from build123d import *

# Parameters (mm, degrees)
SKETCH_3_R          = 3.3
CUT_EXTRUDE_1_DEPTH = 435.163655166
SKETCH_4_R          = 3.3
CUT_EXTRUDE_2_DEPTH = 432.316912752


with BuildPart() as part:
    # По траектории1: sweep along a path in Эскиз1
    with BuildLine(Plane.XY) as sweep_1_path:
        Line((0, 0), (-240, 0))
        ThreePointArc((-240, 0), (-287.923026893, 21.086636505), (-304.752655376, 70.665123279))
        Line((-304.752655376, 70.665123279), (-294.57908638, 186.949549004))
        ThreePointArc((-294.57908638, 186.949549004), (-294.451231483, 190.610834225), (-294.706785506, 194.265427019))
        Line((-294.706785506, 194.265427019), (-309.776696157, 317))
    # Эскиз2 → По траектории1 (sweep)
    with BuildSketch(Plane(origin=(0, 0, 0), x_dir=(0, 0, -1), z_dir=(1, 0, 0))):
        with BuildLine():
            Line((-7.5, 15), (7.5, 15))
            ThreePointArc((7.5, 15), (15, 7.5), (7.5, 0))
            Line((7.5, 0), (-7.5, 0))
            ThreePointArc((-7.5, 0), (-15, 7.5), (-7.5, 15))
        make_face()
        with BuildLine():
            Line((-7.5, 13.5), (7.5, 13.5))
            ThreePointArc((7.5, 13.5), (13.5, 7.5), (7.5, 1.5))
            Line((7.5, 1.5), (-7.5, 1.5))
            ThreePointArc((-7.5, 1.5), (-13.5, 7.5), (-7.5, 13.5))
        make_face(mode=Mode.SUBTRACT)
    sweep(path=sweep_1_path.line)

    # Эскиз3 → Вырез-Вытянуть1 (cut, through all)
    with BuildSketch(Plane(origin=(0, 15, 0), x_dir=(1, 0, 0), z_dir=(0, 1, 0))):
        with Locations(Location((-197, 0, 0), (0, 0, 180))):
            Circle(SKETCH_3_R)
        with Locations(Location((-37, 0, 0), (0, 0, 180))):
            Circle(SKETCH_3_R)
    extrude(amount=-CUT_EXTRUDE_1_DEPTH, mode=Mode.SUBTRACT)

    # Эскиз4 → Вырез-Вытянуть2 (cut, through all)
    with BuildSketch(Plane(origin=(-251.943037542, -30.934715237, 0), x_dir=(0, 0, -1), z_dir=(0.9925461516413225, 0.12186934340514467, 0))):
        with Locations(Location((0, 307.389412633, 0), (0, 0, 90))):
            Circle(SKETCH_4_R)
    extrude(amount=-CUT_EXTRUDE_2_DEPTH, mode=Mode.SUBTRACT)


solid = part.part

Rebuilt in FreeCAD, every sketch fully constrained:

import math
import FreeCAD as App
import Part
import Sketcher
Q = App.Units.Quantity

doc = App.newDocument("Part")
params = doc.addObject("Spreadsheet::Sheet", "Params")
for row, (alias, value) in enumerate([
    ("sketch1_radius", "6 mm"),
    ("sketch1_radius2", "7.5 mm"),
    ("sketch1_height", "15 mm"),
    ("sketch2_radius", "65 mm"),
    ("sketch2_radius2", "35 mm"),
    ("sketch2_width", "240 mm"),
    ("sketch3_diameter", "6.6 mm"),
    ("sketch4_diameter", "6.6 mm"),
], start=1):
    params.set(f"A{row}", alias)
    params.set(f"B{row}", "=" + value)
    params.setAlias(f"B{row}", alias)

body = doc.addObject("PartDesign::Body", "Body")

sketch1 = body.newObject("Sketcher::SketchObject", "Sketch")
sketch1.AttachmentSupport = (doc.getObject("YZ_Plane"), [""])
sketch1.MapMode = "FlatFace"
sketch1.addGeometry([
    Part.LineSegment(App.Vector(15, -8, 0), App.Vector(15, 8, 0)),
    Part.ArcOfCircle(Part.Circle(App.Vector(8, 8, 0), App.Vector(0, 0, 1), 8), math.radians(0), math.radians(180)),
    Part.LineSegment(App.Vector(0, 8, 0), App.Vector(0, -8, 0)),
    Part.ArcOfCircle(Part.Circle(App.Vector(8, -8, 0), App.Vector(0, 0, 1), 8), math.radians(180), math.radians(360)),
    Part.LineSegment(App.Vector(14, 8, 0), App.Vector(14, -8, 0)),
    Part.ArcOfCircle(Part.Circle(App.Vector(8, -8, 0), App.Vector(0, 0, 1), 6), math.radians(180), math.radians(360)),
    Part.LineSegment(App.Vector(2, -8, 0), App.Vector(2, 8, 0)),
    Part.ArcOfCircle(Part.Circle(App.Vector(8, 8, 0), App.Vector(0, 0, 1), 6), math.radians(0), math.radians(180)),
], False)
sketch1.addConstraint([
    Sketcher.Constraint("Tangent", 0, 2, 1, 1),
    Sketcher.Constraint("Tangent", 1, 2, 2, 1),
    Sketcher.Constraint("Tangent", 2, 2, 3, 1),
    Sketcher.Constraint("Tangent", 3, 2, 0, 1),
    Sketcher.Constraint("Tangent", 4, 2, 5, 2),
    Sketcher.Constraint("Tangent", 5, 1, 6, 1),
    Sketcher.Constraint("Tangent", 6, 2, 7, 2),
    Sketcher.Constraint("Tangent", 7, 1, 4, 1),
    Sketcher.Constraint("Vertical", 0),
    Sketcher.Constraint("Vertical", 2),
    Sketcher.Constraint("Vertical", 4),
    Sketcher.Constraint("Vertical", 6),
    Sketcher.Constraint("Coincident", 5, 3, 3, 3),
    Sketcher.Constraint("Symmetric", 1, 2, 2, 2, -1, 1),
    Sketcher.Constraint("Horizontal", 7, 3, 0, 2),
    Sketcher.Constraint("Radius", 5, Q("6 mm")),
    Sketcher.Constraint("Radius", 1, Q("7.5 mm")),
    Sketcher.Constraint("DistanceY", 0, 1, 0, 2, Q("15 mm")),
])
sketch1.setExpression("Constraints[15]", "Params.sketch1_radius")
sketch1.setExpression("Constraints[16]", "Params.sketch1_radius2")
sketch1.setExpression("Constraints[17]", "Params.sketch1_height")

sketch2 = body.newObject("Sketcher::SketchObject", "Sketch001")
sketch2.AttachmentSupport = (doc.getObject("XY_Plane"), [""])
sketch2.MapMode = "FlatFace"
sketch2.addGeometry([
    Part.LineSegment(App.Vector(0, 0, 0), App.Vector(-240, 0, 0)),
    Part.ArcOfCircle(Part.Circle(App.Vector(-240, 65, 0), App.Vector(0, 0, 1), 65), math.radians(175), math.radians(270)),
    Part.LineSegment(App.Vector(-305, 71, 0), App.Vector(-295, 187, 0)),
    Part.ArcOfCircle(Part.Circle(App.Vector(-329, 190, 0), App.Vector(0, 0, 1), 35), math.radians(-5), math.radians(7)),
    Part.LineSegment(App.Vector(-295, 194, 0), App.Vector(-310, 317, 0)),
], False)
sketch2.addConstraint([
    Sketcher.Constraint("Tangent", 0, 2, 1, 2),
    Sketcher.Constraint("Tangent", 1, 1, 2, 1),
    Sketcher.Constraint("Tangent", 2, 2, 3, 1),
    Sketcher.Constraint("Tangent", 3, 2, 4, 1),
    Sketcher.Constraint("Horizontal", 0),
    Sketcher.Constraint("Coincident", 0, 1, -1, 1),
    Sketcher.Constraint("Radius", 1, Q("65 mm")),
    Sketcher.Constraint("Radius", 3, Q("35 mm")),
    Sketcher.Constraint("DistanceX", 0, 2, 0, 1, Q("240 mm")),
    Sketcher.Constraint("Angle", 2, Q("85 deg")),
    Sketcher.Constraint("Angle", 4, Q("97 deg")),
    Sketcher.Constraint("DistanceY", -1, 1, 3, 3, Q("190 mm")),
    Sketcher.Constraint("DistanceY", -1, 1, 4, 2, Q("317 mm")),
])
sketch2.setExpression("Constraints[6]", "Params.sketch2_radius")
sketch2.setExpression("Constraints[7]", "Params.sketch2_radius2")
sketch2.setExpression("Constraints[8]", "Params.sketch2_width")
doc.recompute()

additivepipe = body.newObject("PartDesign::AdditivePipe", "AdditivePipe")
additivepipe.Profile = sketch1
additivepipe.Spine = (sketch2, ["Edge1", "Edge2", "Edge3", "Edge4", "Edge5"])

sketch3 = body.newObject("Sketcher::SketchObject", "Sketch002")
sketch3.AttachmentSupport = (doc.getObject("XZ_Plane"), [""])
sketch3.MapMode = "FlatFace"
sketch3.AttachmentOffset = App.Placement(App.Vector(0, 0, -15), App.Rotation())
sketch3.addGeometry([
    Part.Circle(App.Vector(-197, 0, 0), App.Vector(0, 0, 1), 3.3),
    Part.Circle(App.Vector(-37, 0, 0), App.Vector(0, 0, 1), 3.3),
], False)
sketch3.addConstraint([
    Sketcher.Constraint("Equal", 0, 1),
    Sketcher.Constraint("PointOnObject", 0, 3, -1),
    Sketcher.Constraint("PointOnObject", 1, 3, -1),
    Sketcher.Constraint("Diameter", 0, Q("6.6 mm")),
    Sketcher.Constraint("DistanceX", 0, 3, -1, 1, Q("197 mm")),
    Sketcher.Constraint("DistanceX", 1, 3, -1, 1, Q("37 mm")),
])
sketch3.setExpression("Constraints[3]", "Params.sketch3_diameter")
pocket1 = body.newObject("PartDesign::Pocket", "Pocket")
pocket1.Profile = sketch3
pocket1.Type = "ThroughAll"
pocket1.Reversed = True

sketch4 = body.newObject("Sketcher::SketchObject", "Sketch003")
sketch4.Placement = App.Placement(App.Vector(-251.943038, -30.934715, 0), App.Rotation(App.Vector(0, 0, -1), App.Vector(-0.121869343, 0.992546152, 0), App.Vector(0.992546152, 0.121869343, 0), "ZXY"))
sketch4.addGeometry(Part.Circle(App.Vector(0, 307.4, 0), App.Vector(0, 0, 1), 3.3), False)
sketch4.addConstraint([
    Sketcher.Constraint("PointOnObject", 0, 3, -2),
    Sketcher.Constraint("Diameter", 0, Q("6.6 mm")),
    Sketcher.Constraint("DistanceY", -1, 1, 0, 3, Q("307.389413 mm")),
])
sketch4.setExpression("Constraints[1]", "Params.sketch4_diameter")
pocket2 = body.newObject("PartDesign::Pocket", "Pocket001")
pocket2.Profile = sketch4
pocket2.Type = "ThroughAll"

doc.recompute()
